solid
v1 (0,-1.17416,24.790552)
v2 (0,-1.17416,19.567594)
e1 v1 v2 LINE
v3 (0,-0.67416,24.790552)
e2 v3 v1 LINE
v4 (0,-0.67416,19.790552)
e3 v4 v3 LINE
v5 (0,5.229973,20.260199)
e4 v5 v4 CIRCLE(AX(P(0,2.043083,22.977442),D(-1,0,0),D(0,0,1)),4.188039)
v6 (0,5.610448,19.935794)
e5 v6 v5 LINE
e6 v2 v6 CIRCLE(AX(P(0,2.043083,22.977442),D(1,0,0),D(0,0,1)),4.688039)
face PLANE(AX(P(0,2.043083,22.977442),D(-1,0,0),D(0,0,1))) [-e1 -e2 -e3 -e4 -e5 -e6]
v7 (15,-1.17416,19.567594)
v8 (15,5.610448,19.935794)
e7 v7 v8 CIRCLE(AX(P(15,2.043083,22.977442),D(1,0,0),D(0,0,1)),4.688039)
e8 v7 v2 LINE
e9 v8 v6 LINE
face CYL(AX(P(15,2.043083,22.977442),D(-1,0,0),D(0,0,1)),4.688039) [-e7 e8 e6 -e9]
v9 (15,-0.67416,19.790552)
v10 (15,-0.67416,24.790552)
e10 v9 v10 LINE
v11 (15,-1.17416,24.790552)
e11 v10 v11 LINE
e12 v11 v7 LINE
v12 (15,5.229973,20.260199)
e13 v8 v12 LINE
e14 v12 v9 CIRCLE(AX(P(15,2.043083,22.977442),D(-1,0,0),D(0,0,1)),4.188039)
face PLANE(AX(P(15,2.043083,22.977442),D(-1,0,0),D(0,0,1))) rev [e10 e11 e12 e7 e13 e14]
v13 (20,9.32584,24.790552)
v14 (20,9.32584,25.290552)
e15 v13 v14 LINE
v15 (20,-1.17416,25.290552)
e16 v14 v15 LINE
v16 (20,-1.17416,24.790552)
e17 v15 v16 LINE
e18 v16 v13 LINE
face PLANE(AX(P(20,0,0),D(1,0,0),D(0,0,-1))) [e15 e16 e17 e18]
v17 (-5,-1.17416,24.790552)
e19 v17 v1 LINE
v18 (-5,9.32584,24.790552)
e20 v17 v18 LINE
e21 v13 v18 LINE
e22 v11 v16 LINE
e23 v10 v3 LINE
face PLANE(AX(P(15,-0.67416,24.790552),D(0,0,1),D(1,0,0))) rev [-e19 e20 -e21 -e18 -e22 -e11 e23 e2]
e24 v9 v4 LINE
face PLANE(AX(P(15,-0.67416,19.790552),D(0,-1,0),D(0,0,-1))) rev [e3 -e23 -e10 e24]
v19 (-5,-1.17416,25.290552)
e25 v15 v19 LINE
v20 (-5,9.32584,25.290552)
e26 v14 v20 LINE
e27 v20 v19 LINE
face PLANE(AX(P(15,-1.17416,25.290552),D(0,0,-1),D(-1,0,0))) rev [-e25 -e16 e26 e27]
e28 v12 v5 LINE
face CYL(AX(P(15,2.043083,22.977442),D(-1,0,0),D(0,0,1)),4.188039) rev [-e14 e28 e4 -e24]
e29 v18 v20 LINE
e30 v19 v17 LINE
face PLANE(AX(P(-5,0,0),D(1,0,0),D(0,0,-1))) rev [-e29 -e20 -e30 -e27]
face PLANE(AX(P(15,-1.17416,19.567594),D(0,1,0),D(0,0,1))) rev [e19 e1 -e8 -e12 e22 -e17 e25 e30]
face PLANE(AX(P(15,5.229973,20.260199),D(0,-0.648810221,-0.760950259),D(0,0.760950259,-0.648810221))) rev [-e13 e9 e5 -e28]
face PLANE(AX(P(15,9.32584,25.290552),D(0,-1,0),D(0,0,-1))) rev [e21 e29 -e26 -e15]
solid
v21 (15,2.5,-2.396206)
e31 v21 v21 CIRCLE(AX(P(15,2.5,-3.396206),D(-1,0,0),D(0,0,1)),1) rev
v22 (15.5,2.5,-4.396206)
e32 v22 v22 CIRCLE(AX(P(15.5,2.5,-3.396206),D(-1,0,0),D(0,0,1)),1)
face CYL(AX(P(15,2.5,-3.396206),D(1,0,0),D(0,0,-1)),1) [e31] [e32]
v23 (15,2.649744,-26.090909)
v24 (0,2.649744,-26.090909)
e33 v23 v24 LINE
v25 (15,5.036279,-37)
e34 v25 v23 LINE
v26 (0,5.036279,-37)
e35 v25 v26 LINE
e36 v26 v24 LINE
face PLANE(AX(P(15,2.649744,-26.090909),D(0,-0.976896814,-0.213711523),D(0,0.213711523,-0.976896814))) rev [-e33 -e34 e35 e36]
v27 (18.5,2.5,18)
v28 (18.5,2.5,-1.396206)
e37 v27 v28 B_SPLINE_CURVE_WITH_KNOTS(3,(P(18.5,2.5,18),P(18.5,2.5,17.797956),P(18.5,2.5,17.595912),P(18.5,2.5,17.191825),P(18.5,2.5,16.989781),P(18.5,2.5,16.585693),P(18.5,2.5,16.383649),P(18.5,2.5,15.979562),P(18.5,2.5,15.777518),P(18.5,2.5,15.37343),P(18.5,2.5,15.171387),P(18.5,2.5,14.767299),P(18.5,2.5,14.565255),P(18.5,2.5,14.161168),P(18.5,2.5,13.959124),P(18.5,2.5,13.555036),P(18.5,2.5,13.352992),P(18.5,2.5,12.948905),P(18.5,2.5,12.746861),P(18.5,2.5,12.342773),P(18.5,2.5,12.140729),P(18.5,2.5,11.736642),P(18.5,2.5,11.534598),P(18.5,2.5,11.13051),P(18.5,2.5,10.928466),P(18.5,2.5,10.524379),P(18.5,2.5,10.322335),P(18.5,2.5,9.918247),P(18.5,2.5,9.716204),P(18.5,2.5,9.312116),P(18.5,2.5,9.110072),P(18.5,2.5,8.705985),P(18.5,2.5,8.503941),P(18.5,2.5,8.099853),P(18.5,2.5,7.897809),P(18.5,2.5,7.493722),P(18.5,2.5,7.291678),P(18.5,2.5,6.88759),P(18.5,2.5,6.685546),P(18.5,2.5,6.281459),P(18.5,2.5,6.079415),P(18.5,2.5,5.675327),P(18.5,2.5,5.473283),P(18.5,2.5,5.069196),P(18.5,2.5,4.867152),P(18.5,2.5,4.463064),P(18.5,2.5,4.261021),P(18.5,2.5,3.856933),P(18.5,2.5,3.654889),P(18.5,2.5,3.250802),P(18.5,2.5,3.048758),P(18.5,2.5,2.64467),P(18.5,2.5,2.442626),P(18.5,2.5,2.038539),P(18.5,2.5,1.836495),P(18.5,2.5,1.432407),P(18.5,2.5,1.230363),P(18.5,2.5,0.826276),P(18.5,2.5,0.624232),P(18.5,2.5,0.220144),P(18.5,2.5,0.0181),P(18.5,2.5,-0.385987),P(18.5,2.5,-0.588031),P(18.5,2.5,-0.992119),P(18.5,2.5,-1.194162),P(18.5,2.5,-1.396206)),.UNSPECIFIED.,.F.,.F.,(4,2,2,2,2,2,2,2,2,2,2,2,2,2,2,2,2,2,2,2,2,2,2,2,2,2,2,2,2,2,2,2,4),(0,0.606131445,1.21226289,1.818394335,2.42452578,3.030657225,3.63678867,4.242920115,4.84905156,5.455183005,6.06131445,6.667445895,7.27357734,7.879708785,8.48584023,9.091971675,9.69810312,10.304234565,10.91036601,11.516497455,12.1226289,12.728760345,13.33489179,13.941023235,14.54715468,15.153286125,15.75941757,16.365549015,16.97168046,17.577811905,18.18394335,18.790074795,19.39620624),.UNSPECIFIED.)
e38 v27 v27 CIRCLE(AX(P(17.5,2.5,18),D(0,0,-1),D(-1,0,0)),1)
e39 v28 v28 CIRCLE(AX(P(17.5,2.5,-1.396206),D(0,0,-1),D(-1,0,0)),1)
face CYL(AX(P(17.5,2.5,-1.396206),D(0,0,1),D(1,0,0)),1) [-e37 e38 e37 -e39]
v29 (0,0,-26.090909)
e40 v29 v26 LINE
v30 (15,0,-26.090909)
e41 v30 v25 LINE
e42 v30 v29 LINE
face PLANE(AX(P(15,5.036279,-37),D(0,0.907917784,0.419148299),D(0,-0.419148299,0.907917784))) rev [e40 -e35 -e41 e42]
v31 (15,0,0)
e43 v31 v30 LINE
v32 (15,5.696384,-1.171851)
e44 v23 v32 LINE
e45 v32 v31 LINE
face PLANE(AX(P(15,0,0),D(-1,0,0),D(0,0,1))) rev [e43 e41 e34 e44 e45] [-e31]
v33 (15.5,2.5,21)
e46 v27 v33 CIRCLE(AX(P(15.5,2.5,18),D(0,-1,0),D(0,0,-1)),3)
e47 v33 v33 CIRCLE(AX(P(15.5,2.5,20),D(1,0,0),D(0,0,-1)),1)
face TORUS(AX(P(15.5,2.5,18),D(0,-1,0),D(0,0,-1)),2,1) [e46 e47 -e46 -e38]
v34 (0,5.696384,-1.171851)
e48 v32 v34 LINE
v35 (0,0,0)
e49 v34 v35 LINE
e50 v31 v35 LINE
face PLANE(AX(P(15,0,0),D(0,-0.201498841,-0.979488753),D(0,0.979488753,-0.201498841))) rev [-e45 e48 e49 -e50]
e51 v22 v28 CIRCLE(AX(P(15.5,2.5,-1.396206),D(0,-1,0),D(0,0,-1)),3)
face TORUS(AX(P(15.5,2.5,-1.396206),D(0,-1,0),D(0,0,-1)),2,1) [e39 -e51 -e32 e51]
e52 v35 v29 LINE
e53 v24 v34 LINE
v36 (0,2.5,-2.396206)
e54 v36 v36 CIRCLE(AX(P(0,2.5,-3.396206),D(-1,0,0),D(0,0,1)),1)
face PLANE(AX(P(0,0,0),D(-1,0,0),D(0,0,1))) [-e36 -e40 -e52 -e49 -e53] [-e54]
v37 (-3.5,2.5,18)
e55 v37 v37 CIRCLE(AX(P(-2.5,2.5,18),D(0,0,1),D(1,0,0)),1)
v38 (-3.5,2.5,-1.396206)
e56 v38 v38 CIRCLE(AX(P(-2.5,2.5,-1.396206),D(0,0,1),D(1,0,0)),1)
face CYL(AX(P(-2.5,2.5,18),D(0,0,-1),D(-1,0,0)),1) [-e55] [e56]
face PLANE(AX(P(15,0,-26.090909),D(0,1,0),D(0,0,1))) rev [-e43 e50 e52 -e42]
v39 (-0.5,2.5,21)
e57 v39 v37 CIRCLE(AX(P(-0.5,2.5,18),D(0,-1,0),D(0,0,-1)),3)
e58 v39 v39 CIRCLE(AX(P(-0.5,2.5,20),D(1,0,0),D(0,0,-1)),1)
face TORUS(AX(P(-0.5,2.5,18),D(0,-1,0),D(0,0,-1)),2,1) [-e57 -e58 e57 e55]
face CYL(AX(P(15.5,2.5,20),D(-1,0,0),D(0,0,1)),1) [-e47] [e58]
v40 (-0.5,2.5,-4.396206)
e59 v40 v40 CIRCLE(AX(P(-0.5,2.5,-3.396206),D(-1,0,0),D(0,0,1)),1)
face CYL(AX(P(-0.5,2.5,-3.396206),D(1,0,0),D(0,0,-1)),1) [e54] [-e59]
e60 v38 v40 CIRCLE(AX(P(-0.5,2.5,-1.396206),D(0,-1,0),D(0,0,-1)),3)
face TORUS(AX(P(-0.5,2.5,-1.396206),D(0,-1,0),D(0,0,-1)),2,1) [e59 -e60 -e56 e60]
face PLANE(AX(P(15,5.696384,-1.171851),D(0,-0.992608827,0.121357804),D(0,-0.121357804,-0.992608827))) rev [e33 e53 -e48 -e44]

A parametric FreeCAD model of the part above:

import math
import FreeCAD as App
import Part
import Sketcher

V = App.Vector
Q = App.Units.Quantity

doc = App.newDocument("Part")
body = doc.addObject("PartDesign::Body", "Body")

# Sketch on YZ plane
sketch1 = body.newObject("Sketcher::SketchObject", "Sketch")
sketch1.AttachmentSupport = (doc.getObject("YZ_Plane"), [""])
sketch1.MapMode = "FlatFace"
sketch1.addGeometry([
    Part.LineSegment(V(6, -1, 0), V(0, 0, 0)),  # 0
    Part.LineSegment(V(0, 0, 0), V(0, -26, 0)),  # 1
    Part.LineSegment(V(0, -26, 0), V(5, -37, 0)),  # 2
    Part.LineSegment(V(5, -37, 0), V(3, -26, 0)),  # 3
    Part.LineSegment(V(3, -26, 0), V(6, -1, 0)),  # 4
], False)
sketch1.addConstraint([
    Sketcher.Constraint("Coincident", 0, 2, 1, 1),
    Sketcher.Constraint("Coincident", 1, 2, 2, 1),
    Sketcher.Constraint("Coincident", 2, 2, 3, 1),
    Sketcher.Constraint("Coincident", 3, 2, 4, 1),
    Sketcher.Constraint("Coincident", 4, 2, 0, 1),
    Sketcher.Constraint("Vertical", 1),
    Sketcher.Constraint("Coincident", 0, 2, -1, 1),
    Sketcher.Constraint("Horizontal", 1, 2, 3, 2),
    Sketcher.Constraint("DistanceY", 2, 2, -1, 1, Q("37 mm")),
    Sketcher.Constraint("DistanceY", 1, 2, 1, 1, Q("26.090909 mm")),
    Sketcher.Constraint("Distance", 0, Q("5.815671 mm")),
    Sketcher.Constraint("Distance", 4, Q("25.104611 mm")),
    Sketcher.Constraint("DistanceX", -1, 1, 2, 2, Q("5.036279 mm")),
    Sketcher.Constraint("DistanceY", 4, 2, -1, 1, Q("1.171851 mm")),
])
pad1 = body.newObject("PartDesign::Pad", "Pad")
pad1.Profile = sketch1
pad1.Length = 15

# Sketch on YZ plane
sketch2 = body.newObject("Sketcher::SketchObject", "Sketch001")
sketch2.AttachmentSupport = (doc.getObject("YZ_Plane"), [""])
sketch2.MapMode = "FlatFace"
sketch2.AttachmentOffset = App.Placement(V(0, 0, 15), App.Rotation())
sketch2.addGeometry(Part.Circle(V(2.5, -3.4, 0), V(0, 0, 1), 1), False)
sketch2.addConstraint([
    Sketcher.Constraint("Diameter", 0, Q("2 mm")),
    Sketcher.Constraint("DistanceX", -1, 1, 0, 3, Q("2.5 mm")),
    Sketcher.Constraint("DistanceY", 0, 3, -1, 1, Q("3.396206 mm")),
])

# Sketch on XZ plane
sketch3 = body.newObject("Sketcher::SketchObject", "Sketch002")
sketch3.AttachmentSupport = (doc.getObject("XZ_Plane"), [""])
sketch3.MapMode = "FlatFace"
sketch3.AttachmentOffset = App.Placement(V(0, 0, -2.5), App.Rotation())
sketch3.addGeometry([
    Part.LineSegment(V(15, -3.4, 0), V(15.5, -3.4, 0)),  # 0
    Part.ArcOfCircle(Part.Circle(V(15.5, -1.4, 0), V(0, 0, 1), 2), math.radians(-90), math.radians(0)),  # 1
    Part.LineSegment(V(17.5, -1.4, 0), V(17.5, 18, 0)),  # 2
    Part.ArcOfCircle(Part.Circle(V(15.5, 18, 0), V(0, 0, 1), 2), math.radians(0), math.radians(90)),  # 3
    Part.LineSegment(V(15.5, 20, 0), V(-0.5, 20, 0)),  # 4
    Part.ArcOfCircle(Part.Circle(V(-0.5, 18, 0), V(0, 0, 1), 2), math.radians(90), math.radians(180)),  # 5
    Part.LineSegment(V(-2.5, 18, 0), V(-2.5, -1.4, 0)),  # 6
    Part.ArcOfCircle(Part.Circle(V(-0.5, -1.4, 0), V(0, 0, 1), 2), math.radians(180), math.radians(270)),  # 7
    Part.LineSegment(V(-0.5, -3.4, 0), V(0, -3.4, 0)),  # 8
], False)
sketch3.addConstraint([
    Sketcher.Constraint("Tangent", 0, 2, 1, 1),
    Sketcher.Constraint("Tangent", 1, 2, 2, 1),
    Sketcher.Constraint("Tangent", 2, 2, 3, 1),
    Sketcher.Constraint("Tangent", 3, 2, 4, 1),
    Sketcher.Constraint("Tangent", 4, 2, 5, 1),
    Sketcher.Constraint("Tangent", 5, 2, 6, 1),
    Sketcher.Constraint("Tangent", 6, 2, 7, 1),
    Sketcher.Constraint("Tangent", 7, 2, 8, 1),
    Sketcher.Constraint("Horizontal", 0),
    Sketcher.Constraint("Vertical", 2),
    Sketcher.Constraint("Horizontal", 4),
    Sketcher.Constraint("Vertical", 6),
    Sketcher.Constraint("Horizontal", 8),
    Sketcher.Constraint("Equal", 1, 3),
    Sketcher.Constraint("Equal", 3, 5),
    Sketcher.Constraint("Equal", 5, 7),
    Sketcher.Constraint("PointOnObject", 8, 2, -2),
    Sketcher.Constraint("Horizontal", 1, 3, 7, 3),
    Sketcher.Constraint("Equal", 0, 8),
    Sketcher.Constraint("Radius", 1, Q("2 mm")),
    Sketcher.Constraint("DistanceX", 4, 2, 4, 1, Q("16 mm")),
    Sketcher.Constraint("DistanceX", 0, 1, 0, 2, Q("0.5 mm")),
    Sketcher.Constraint("DistanceY", -1, 1, 3, 3, Q("18 mm")),
    Sketcher.Constraint("DistanceY", 2, 1, 2, 2, Q("19.396206 mm")),
])
doc.recompute()

additivepipe = body.newObject("PartDesign::AdditivePipe", "AdditivePipe")
additivepipe.Profile = sketch2
additivepipe.Spine = (sketch3, ["Edge1", "Edge2", "Edge3", "Edge4", "Edge5", "Edge6", "Edge7", "Edge8", "Edge9"])
body2 = doc.addObject("PartDesign::Body", "Body001")

# Sketch on YZ plane
sketch4 = body2.newObject("Sketcher::SketchObject", "Sketch003")
sketch4.AttachmentSupport = (doc.getObject("YZ_Plane001"), [""])
sketch4.MapMode = "FlatFace"
sketch4.AttachmentOffset = App.Placement(V(0, 0, 7.5), App.Rotation())
sketch4.addGeometry([
    Part.LineSegment(V(-0.67416, 19.790552, 0), V(-0.67416, 24.790552, 0)),  # 0
    Part.LineSegment(V(-0.67416, 24.790552, 0), V(9.32584, 24.790552, 0)),  # 1
    Part.LineSegment(V(9.32584, 24.790552, 0), V(9.32584, 25.290552, 0)),  # 2
    Part.LineSegment(V(9.32584, 25.290552, 0), V(-1.17416, 25.290552, 0)),  # 3
    Part.LineSegment(V(-1.17416, 25.290552, 0), V(-1.17416, 19.567594, 0)),  # 4
    Part.ArcOfCircle(Part.Circle(V(2.043083, 22.977442, 0), V(0, 0, 1), 4.688039), math.radians(-133.335265), math.radians(-40.451958)),  # 5
    Part.LineSegment(V(5.610448, 19.935794, 0), V(5.229973, 20.260199, 0)),  # 6
    Part.ArcOfCircle(Part.Circle(V(2.043083, 22.977442, 0), V(0, 0, 1), 4.188039), math.radians(-130.451958), math.radians(-40.451958)),  # 7
], False)
sketch4.addConstraint([
    Sketcher.Constraint("Coincident", 0, 2, 1, 1),
    Sketcher.Constraint("Coincident", 1, 2, 2, 1),
    Sketcher.Constraint("Coincident", 2, 2, 3, 1),
    Sketcher.Constraint("Coincident", 3, 2, 4, 1),
    Sketcher.Constraint("Coincident", 4, 2, 5, 1),
    Sketcher.Constraint("Coincident", 5, 2, 6, 1),
    Sketcher.Constraint("Coincident", 6, 2, 7, 2),
    Sketcher.Constraint("Coincident", 7, 1, 0, 1),
    Sketcher.Constraint("Vertical", 0),
    Sketcher.Constraint("Horizontal", 1),
    Sketcher.Constraint("Vertical", 2),
    Sketcher.Constraint("Horizontal", 3),
    Sketcher.Constraint("Vertical", 4),
    Sketcher.Constraint("Coincident", 7, 3, 5, 3),
    Sketcher.Constraint("DistanceX", 1, 1, 1, 2, Q("10 mm")),
    Sketcher.Constraint("DistanceY", 0, 1, 0, 2, Q("5 mm")),
    Sketcher.Constraint("DistanceX", 3, 2, 3, 1, Q("10.5 mm")),
    Sketcher.Constraint("DistanceY", 2, 1, 2, 2, Q("0.5 mm")),
    Sketcher.Constraint("Distance", 6, Q("0.5 mm")),
    Sketcher.Constraint("Radius", 5, Q("4.688039 mm")),
    Sketcher.Constraint("DistanceY", 4, 2, 4, 1, Q("5.722958 mm")),
    Sketcher.Constraint("DistanceY", -1, 1, 6, 2, Q("20.260199 mm")),
    Sketcher.Constraint("DistanceY", 4, 2, 5, 2, Q("0.3682 mm")),
    Sketcher.Constraint("DistanceY", -1, 1, 5, 3, Q("22.977442 mm")),
    Sketcher.Constraint("DistanceX", 0, 2, -1, 1, Q("0.67416 mm")),
])
pad2 = body2.newObject("PartDesign::Pad", "Pad001")
pad2.Profile = sketch4
pad2.Length = 15
pad2.Midplane = True

# Sketch on YZ plane
sketch5 = body2.newObject("Sketcher::SketchObject", "Sketch004")
sketch5.AttachmentSupport = (doc.getObject("YZ_Plane001"), [""])
sketch5.MapMode = "FlatFace"
sketch5.AttachmentOffset = App.Placement(V(0, 0, 15), App.Rotation())
sketch5.addGeometry([
    Part.LineSegment(V(9.3, 25.3, 0), V(-1.2, 25.3, 0)),
    Part.LineSegment(V(-1.2, 25.3, 0), V(-1.2, 24.8, 0)),
    Part.LineSegment(V(-1.2, 24.8, 0), V(9.3, 24.8, 0)),
    Part.LineSegment(V(9.3, 24.8, 0), V(9.3, 25.3, 0)),
], False)
sketch5.addConstraint([
    Sketcher.Constraint("Coincident", 0, 2, 1, 1),
    Sketcher.Constraint("Coincident", 1, 2, 2, 1),
    Sketcher.Constraint("Coincident", 2, 2, 3, 1),
    Sketcher.Constraint("Coincident", 3, 2, 0, 1),
    Sketcher.Constraint("Horizontal", 0),
    Sketcher.Constraint("Vertical", 1),
    Sketcher.Constraint("Horizontal", 2),
    Sketcher.Constraint("Vertical", 3),
    Sketcher.Constraint("DistanceX", 0, 2, 0, 1, Q("10.5 mm")),
    Sketcher.Constraint("DistanceY", 1, 2, 1, 1, Q("0.5 mm")),
    Sketcher.Constraint("DistanceX", 0, 2, -1, 1, Q("1.17416 mm")),
    Sketcher.Constraint("DistanceY", -1, 1, 0, 2, Q("25.290552 mm")),
])
pad3 = body2.newObject("PartDesign::Pad", "Pad002")
pad3.Profile = sketch5
pad3.Type = "TwoLengths"
pad3.Length = 5
pad3.Length2 = 20

doc.recompute()
